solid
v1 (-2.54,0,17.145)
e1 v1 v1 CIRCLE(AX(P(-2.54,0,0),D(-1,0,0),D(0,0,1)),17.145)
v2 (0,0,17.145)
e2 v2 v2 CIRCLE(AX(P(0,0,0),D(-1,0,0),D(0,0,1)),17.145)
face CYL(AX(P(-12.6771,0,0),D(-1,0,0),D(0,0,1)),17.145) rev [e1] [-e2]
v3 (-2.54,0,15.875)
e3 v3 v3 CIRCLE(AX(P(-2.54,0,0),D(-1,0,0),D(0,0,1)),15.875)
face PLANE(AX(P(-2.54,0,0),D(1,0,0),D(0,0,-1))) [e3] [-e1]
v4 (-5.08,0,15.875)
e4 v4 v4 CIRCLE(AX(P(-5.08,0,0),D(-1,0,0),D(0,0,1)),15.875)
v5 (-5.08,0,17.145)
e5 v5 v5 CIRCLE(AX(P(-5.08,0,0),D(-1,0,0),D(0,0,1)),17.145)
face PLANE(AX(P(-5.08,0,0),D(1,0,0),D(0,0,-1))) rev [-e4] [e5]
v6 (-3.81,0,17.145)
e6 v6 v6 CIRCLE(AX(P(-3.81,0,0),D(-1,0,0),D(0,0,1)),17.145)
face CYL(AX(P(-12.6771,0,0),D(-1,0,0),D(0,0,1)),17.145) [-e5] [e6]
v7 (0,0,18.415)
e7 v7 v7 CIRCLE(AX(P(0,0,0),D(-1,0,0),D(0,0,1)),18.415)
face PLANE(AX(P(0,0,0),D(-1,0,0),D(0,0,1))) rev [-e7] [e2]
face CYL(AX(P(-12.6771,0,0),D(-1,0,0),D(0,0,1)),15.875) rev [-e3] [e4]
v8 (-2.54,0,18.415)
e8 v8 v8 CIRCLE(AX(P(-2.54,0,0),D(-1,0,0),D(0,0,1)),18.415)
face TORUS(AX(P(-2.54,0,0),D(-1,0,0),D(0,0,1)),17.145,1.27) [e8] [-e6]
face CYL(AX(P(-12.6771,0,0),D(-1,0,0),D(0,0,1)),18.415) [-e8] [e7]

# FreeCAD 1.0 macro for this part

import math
import FreeCAD as App
import Part
import Sketcher
Q = App.Units.Quantity

doc = App.newDocument("Part")
body = doc.addObject("PartDesign::Body", "Body")

# Sketch on XY plane
sketch1 = doc.addObject("Sketcher::SketchObject", "Sketch")
body.addObject(sketch1)
sketch1.AttachmentSupport = (doc.XY_Plane, [""])
sketch1.MapMode = "FlatFace"
sketch1.addGeometry([
    Part.LineSegment(App.Vector(0, 18.4, 0), App.Vector(-2.5, 18.4, 0)),  # 0
    Part.ArcOfCircle(Part.Circle(App.Vector(-2.5, 17.1, 0), App.Vector(0, 0, 1), 1.3), math.radians(90), math.radians(180)),  # 1
    Part.LineSegment(App.Vector(-3.8, 17.1, 0), App.Vector(-5.1, 17.1, 0)),  # 2
    Part.LineSegment(App.Vector(-5.1, 17.1, 0), App.Vector(-5.1, 15.9, 0)),  # 3
    Part.LineSegment(App.Vector(-5.1, 15.9, 0), App.Vector(-2.5, 15.9, 0)),  # 4
    Part.LineSegment(App.Vector(-2.5, 15.9, 0), App.Vector(-2.5, 17.1, 0)),  # 5
    Part.LineSegment(App.Vector(-2.5, 17.1, 0), App.Vector(0, 17.1, 0)),  # 6
    Part.LineSegment(App.Vector(0, 17.1, 0), App.Vector(0, 18.4, 0)),  # 7
], False)
sketch1.addConstraint([
    Sketcher.Constraint("Tangent", 0, 2, 1, 1),
    Sketcher.Constraint("Coincident", 1, 2, 2, 1),
    Sketcher.Constraint("Coincident", 2, 2, 3, 1),
    Sketcher.Constraint("Coincident", 3, 2, 4, 1),
    Sketcher.Constraint("Coincident", 4, 2, 5, 1),
    Sketcher.Constraint("Coincident", 5, 2, 6, 1),
    Sketcher.Constraint("Coincident", 6, 2, 7, 1),
    Sketcher.Constraint("Coincident", 7, 2, 0, 1),
    Sketcher.Constraint("Horizontal", 0),
    Sketcher.Constraint("Horizontal", 2),
    Sketcher.Constraint("Vertical", 3),
    Sketcher.Constraint("Horizontal", 4),
    Sketcher.Constraint("Vertical", 5),
    Sketcher.Constraint("Horizontal", 6),
    Sketcher.Constraint("Vertical", 7),
    Sketcher.Constraint("Coincident", 5, 2, 1, 3),
    Sketcher.Constraint("PointOnObject", 6, 2, -2),
    Sketcher.Constraint("Horizontal", 2, 2, 5, 2),
    Sketcher.Constraint("Equal", 0, 4),
    Sketcher.Constraint("Equal", 2, 3),
    Sketcher.Constraint("Equal", 5, 7),
    Sketcher.Constraint("Radius", 1, Q("0.05 in")),
    Sketcher.Constraint("DistanceY", -1, 1, 1, 3, Q("0.675 in")),
])
revolution = doc.addObject("PartDesign::Revolution", "Revolution")
body.addObject(revolution)
revolution.Profile = sketch1
revolution.ReferenceAxis = (sketch1, ["H_Axis"])
revolution.Angle = 360

doc.recompute()
